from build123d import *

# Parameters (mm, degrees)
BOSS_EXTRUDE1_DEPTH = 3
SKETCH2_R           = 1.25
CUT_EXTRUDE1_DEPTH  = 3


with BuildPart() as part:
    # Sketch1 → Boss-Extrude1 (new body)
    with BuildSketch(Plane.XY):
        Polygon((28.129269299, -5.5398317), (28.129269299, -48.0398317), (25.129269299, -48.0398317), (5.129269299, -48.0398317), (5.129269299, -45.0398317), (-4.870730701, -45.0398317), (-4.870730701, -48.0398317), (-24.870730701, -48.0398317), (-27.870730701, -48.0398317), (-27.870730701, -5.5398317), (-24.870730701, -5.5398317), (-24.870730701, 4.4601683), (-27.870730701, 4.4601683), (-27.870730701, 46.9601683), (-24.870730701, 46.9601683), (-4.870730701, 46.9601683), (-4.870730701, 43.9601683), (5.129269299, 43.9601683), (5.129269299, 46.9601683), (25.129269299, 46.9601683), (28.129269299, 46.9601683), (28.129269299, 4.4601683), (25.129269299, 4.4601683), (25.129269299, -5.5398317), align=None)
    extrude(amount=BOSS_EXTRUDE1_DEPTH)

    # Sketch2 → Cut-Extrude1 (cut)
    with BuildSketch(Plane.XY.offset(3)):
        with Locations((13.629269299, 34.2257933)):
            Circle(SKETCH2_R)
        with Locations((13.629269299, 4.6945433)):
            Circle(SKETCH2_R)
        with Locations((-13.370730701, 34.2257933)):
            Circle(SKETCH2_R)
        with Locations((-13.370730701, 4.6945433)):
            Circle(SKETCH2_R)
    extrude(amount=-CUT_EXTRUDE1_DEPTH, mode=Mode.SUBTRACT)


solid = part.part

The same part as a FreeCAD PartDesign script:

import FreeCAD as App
import Part
import Sketcher
from FreeCAD import Vector

doc = App.newDocument("Part")
body = doc.addObject("PartDesign::Body", "Body")

sketch1 = doc.addObject("Sketcher::SketchObject", "Sketch")
body.addObject(sketch1)
sketch1.AttachmentSupport = (doc.XY_Plane, [""])
sketch1.MapMode = "FlatFace"
sketch1.addGeometry([
    Part.LineSegment(Vector(28.1, -48, 0), Vector(28.1, -5.5, 0)),
    Part.LineSegment(Vector(28.1, -5.5, 0), Vector(25.1, -5.5, 0)),
    Part.LineSegment(Vector(25.1, -5.5, 0), Vector(25.1, 4.5, 0)),
    Part.LineSegment(Vector(25.1, 4.5, 0), Vector(28.1, 4.5, 0)),
    Part.LineSegment(Vector(28.1, 4.5, 0), Vector(28.1, 47, 0)),
    Part.LineSegment(Vector(28.1, 47, 0), Vector(5.1, 47, 0)),
    Part.LineSegment(Vector(5.1, 47, 0), Vector(5.1, 44, 0)),
    Part.LineSegment(Vector(5.1, 44, 0), Vector(-4.9, 44, 0)),
    Part.LineSegment(Vector(-4.9, 44, 0), Vector(-4.9, 47, 0)),
    Part.LineSegment(Vector(-4.9, 47, 0), Vector(-27.9, 47, 0)),
    Part.LineSegment(Vector(-27.9, 47, 0), Vector(-27.9, 4.5, 0)),
    Part.LineSegment(Vector(-27.9, 4.5, 0), Vector(-24.9, 4.5, 0)),
    Part.LineSegment(Vector(-24.9, 4.5, 0), Vector(-24.9, -5.5, 0)),
    Part.LineSegment(Vector(-24.9, -5.5, 0), Vector(-27.9, -5.5, 0)),
    Part.LineSegment(Vector(-27.9, -5.5, 0), Vector(-27.9, -48, 0)),
    Part.LineSegment(Vector(-27.9, -48, 0), Vector(-4.9, -48, 0)),
    Part.LineSegment(Vector(-4.9, -48, 0), Vector(-4.9, -45, 0)),
    Part.LineSegment(Vector(-4.9, -45, 0), Vector(5.1, -45, 0)),
    Part.LineSegment(Vector(5.1, -45, 0), Vector(5.1, -48, 0)),
    Part.LineSegment(Vector(5.1, -48, 0), Vector(28.1, -48, 0)),
], False)
sketch1.addConstraint([
    Sketcher.Constraint("Coincident", 0, 2, 1, 1),
    Sketcher.Constraint("Coincident", 1, 2, 2, 1),
    Sketcher.Constraint("Coincident", 2, 2, 3, 1),
    Sketcher.Constraint("Coincident", 3, 2, 4, 1),
    Sketcher.Constraint("Coincident", 4, 2, 5, 1),
    Sketcher.Constraint("Coincident", 5, 2, 6, 1),
    Sketcher.Constraint("Coincident", 6, 2, 7, 1),
    Sketcher.Constraint("Coincident", 7, 2, 8, 1),
    Sketcher.Constraint("Coincident", 8, 2, 9, 1),
    Sketcher.Constraint("Coincident", 9, 2, 10, 1),
    Sketcher.Constraint("Coincident", 10, 2, 11, 1),
    Sketcher.Constraint("Coincident", 11, 2, 12, 1),
    Sketcher.Constraint("Coincident", 12, 2, 13, 1),
    Sketcher.Constraint("Coincident", 13, 2, 14, 1),
    Sketcher.Constraint("Coincident", 14, 2, 15, 1),
    Sketcher.Constraint("Coincident", 15, 2, 16, 1),
    Sketcher.Constraint("Coincident", 16, 2, 17, 1),
    Sketcher.Constraint("Coincident", 17, 2, 18, 1),
    Sketcher.Constraint("Coincident", 18, 2, 19, 1),
    Sketcher.Constraint("Coincident", 19, 2, 0, 1),
    Sketcher.Constraint("Vertical", 0),
    Sketcher.Constraint("Horizontal", 1),
    Sketcher.Constraint("Vertical", 2),
    Sketcher.Constraint("Horizontal", 3),
    Sketcher.Constraint("Vertical", 4),
    Sketcher.Constraint("Horizontal", 5),
    Sketcher.Constraint("Vertical", 6),
    Sketcher.Constraint("Horizontal", 7),
    Sketcher.Constraint("Vertical", 8),
    Sketcher.Constraint("Horizontal", 9),
    Sketcher.Constraint("Vertical", 10),
    Sketcher.Constraint("Horizontal", 11),
    Sketcher.Constraint("Vertical", 12),
    Sketcher.Constraint("Horizontal", 13),
    Sketcher.Constraint("Vertical", 14),
    Sketcher.Constraint("Horizontal", 15),
    Sketcher.Constraint("Vertical", 16),
    Sketcher.Constraint("Horizontal", 17),
    Sketcher.Constraint("Vertical", 18),
    Sketcher.Constraint("Horizontal", 19),
    Sketcher.Constraint("Horizontal", 5, 2, 8, 2),
    Sketcher.Constraint("Horizontal", 3, 2, 10, 2),
    Sketcher.Constraint("Horizontal", 1, 2, 12, 2),
    Sketcher.Constraint("Horizontal", 15, 2, 18, 2),
    Sketcher.Constraint("Vertical", 0, 2, 3, 2),
    Sketcher.Constraint("Vertical", 10, 2, 13, 2),
    Sketcher.Constraint("Vertical", 8, 2, 15, 2),
    Sketcher.Constraint("Vertical", 6, 2, 17, 2),
    Sketcher.Constraint("Equal", 5, 9),
    Sketcher.Constraint("Equal", 3, 11),
    Sketcher.Constraint("Equal", 17, 2),
    Sketcher.Constraint("Equal", 0, 4),
    Sketcher.Constraint("Equal", 13, 6),
    Sketcher.Constraint("Equal", 8, 16),
    Sketcher.Constraint("DistanceX", 1, 2, 1, 1, 3.0),
    Sketcher.Constraint("DistanceX", 5, 2, 5, 1, 23.0),
    Sketcher.Constraint("DistanceX", 7, 2, 7, 1, 10.0),
    Sketcher.Constraint("DistanceY", 0, 1, 0, 2, 42.5),
    Sketcher.Constraint("DistanceX", -1, 1, 0, 2, 28.129269),
    Sketcher.Constraint("DistanceY", 0, 2, -1, 1, 5.539832),
])
pad1 = doc.addObject("PartDesign::Pad", "Pad")
body.addObject(pad1)
pad1.Profile = sketch1
pad1.Length = 3

sketch2 = doc.addObject("Sketcher::SketchObject", "Sketch001")
body.addObject(sketch2)
sketch2.AttachmentSupport = (doc.XY_Plane, [""])
sketch2.MapMode = "FlatFace"
sketch2.AttachmentOffset = App.Placement(Vector(0, 0, 3), App.Rotation())
sketch2.addGeometry([
    Part.Circle(Vector(13.6, 34.2, 0), Vector(0, 0, 1), 1.2),
    Part.Circle(Vector(13.6, 4.7, 0), Vector(0, 0, 1), 1.2),
    Part.Circle(Vector(-13.4, 34.2, 0), Vector(0, 0, 1), 1.2),
    Part.Circle(Vector(-13.4, 4.7, 0), Vector(0, 0, 1), 1.2),
], False)
sketch2.addConstraint([
    Sketcher.Constraint("Equal", 0, 1),
    Sketcher.Constraint("Equal", 1, 2),
    Sketcher.Constraint("Equal", 2, 3),
    Sketcher.Constraint("Horizontal", 0, 3, 2, 3),
    Sketcher.Constraint("Horizontal", 1, 3, 3, 3),
    Sketcher.Constraint("Vertical", 0, 3, 1, 3),
    Sketcher.Constraint("Vertical", 2, 3, 3, 3),
    Sketcher.Constraint("Diameter", 0, 2.5),
    Sketcher.Constraint("DistanceX", 2, 3, 0, 3, 27.0),
    Sketcher.Constraint("DistanceX", -1, 1, 0, 3, 13.629269),
    Sketcher.Constraint("DistanceY", 1, 3, 0, 3, 29.53125),
    Sketcher.Constraint("DistanceY", -1, 1, 0, 3, 34.225793),
])
pocket1 = doc.addObject("PartDesign::Pocket", "Pocket")
body.addObject(pocket1)
pocket1.Profile = sketch2
pocket1.Length = 3

doc.recompute()
